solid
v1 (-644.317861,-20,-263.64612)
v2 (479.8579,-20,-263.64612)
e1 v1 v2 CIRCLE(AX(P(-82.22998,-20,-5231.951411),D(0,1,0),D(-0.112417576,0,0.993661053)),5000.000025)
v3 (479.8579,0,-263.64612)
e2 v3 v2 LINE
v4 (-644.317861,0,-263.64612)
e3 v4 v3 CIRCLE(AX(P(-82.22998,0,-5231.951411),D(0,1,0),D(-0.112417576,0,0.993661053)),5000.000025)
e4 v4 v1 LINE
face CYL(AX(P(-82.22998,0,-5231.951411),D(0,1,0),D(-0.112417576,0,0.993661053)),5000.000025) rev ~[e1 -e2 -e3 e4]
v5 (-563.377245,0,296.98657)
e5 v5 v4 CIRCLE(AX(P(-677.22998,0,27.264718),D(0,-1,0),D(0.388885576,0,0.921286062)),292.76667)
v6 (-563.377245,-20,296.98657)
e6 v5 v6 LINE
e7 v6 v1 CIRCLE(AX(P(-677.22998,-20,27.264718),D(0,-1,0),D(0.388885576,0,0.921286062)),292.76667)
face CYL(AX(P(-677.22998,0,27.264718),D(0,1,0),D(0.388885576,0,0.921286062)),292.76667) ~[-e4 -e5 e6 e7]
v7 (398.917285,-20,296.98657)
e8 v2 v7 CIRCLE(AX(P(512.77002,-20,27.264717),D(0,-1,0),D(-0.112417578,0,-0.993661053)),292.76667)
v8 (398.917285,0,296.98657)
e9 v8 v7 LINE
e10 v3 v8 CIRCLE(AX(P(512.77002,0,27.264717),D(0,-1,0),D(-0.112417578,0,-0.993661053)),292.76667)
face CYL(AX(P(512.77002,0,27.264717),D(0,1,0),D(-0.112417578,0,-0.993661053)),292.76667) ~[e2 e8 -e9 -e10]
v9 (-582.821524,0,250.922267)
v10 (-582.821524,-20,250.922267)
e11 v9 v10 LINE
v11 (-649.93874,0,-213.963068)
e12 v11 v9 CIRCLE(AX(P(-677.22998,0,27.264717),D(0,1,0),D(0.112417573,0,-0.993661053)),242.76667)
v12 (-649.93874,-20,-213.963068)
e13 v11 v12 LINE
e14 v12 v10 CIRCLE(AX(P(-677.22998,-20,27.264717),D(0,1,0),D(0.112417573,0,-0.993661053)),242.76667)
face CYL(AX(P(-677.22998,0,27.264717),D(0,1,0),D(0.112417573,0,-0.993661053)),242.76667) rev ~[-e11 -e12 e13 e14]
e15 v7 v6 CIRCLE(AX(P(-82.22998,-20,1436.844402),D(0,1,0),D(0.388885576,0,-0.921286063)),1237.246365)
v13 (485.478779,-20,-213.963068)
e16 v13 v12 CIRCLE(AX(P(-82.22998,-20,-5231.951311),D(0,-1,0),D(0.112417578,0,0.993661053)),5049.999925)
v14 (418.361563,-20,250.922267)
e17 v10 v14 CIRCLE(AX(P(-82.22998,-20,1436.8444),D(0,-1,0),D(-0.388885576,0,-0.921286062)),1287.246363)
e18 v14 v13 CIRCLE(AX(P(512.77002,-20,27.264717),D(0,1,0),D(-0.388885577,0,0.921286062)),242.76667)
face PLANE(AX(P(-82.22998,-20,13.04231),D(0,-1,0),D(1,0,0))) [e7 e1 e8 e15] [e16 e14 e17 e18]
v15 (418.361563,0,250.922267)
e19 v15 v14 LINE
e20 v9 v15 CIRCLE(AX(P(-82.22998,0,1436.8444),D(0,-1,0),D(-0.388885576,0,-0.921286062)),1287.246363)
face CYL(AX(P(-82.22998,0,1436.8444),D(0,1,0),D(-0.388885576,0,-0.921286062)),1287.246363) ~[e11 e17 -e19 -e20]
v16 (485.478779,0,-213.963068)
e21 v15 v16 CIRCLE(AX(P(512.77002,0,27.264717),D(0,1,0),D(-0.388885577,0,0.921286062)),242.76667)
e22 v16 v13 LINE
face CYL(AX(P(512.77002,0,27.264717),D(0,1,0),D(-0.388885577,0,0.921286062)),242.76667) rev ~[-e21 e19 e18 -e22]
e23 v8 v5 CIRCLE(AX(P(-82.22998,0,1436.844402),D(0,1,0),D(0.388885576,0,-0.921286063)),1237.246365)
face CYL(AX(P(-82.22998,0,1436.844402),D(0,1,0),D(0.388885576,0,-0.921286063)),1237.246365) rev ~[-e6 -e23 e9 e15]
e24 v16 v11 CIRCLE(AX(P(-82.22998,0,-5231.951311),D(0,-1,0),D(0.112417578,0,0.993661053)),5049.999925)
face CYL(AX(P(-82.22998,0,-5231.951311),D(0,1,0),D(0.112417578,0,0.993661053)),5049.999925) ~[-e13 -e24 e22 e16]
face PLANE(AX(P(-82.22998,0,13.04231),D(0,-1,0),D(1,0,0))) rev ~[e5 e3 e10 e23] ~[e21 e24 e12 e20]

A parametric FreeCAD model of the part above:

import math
import FreeCAD as App
import Part
import Sketcher

V = App.Vector

doc = App.newDocument("Part")
body = doc.addObject("PartDesign::Body", "Body")

sketch1 = body.newObject("Sketcher::SketchObject", "Sketch")
sketch1.AttachmentSupport = (doc.getObject("XZ_Plane"), [""])
sketch1.MapMode = "FlatFace"
sketch1.addGeometry([
    Part.ArcOfCircle(Part.Circle(V(-82, 1437, 0), V(0, 0, 1), 1237), math.radians(-113), math.radians(-67)),
    Part.ArcOfCircle(Part.Circle(V(-677, 27, 0), V(0, 0, 1), 293), math.radians(67), math.radians(276)),
    Part.ArcOfCircle(Part.Circle(V(-82, -5232, 0), V(0, 0, 1), 5000), math.radians(83.55), math.radians(96.45)),
    Part.ArcOfCircle(Part.Circle(V(513, 27, 0), V(0, 0, 1), 293), math.radians(-96), math.radians(113)),
    Part.ArcOfCircle(Part.Circle(V(-82, -5232, 0), V(0, 0, 1), 5050), math.radians(83.55), math.radians(96.45)),
    Part.ArcOfCircle(Part.Circle(V(-677, 27, 0), V(0, 0, 1), 243), math.radians(67), math.radians(276)),
    Part.ArcOfCircle(Part.Circle(V(-82, 1437, 0), V(0, 0, 1), 1287), math.radians(-113), math.radians(-67)),
    Part.ArcOfCircle(Part.Circle(V(513, 27, 0), V(0, 0, 1), 243), math.radians(-96), math.radians(113)),
], False)
sketch1.addConstraint([
    Sketcher.Constraint("Tangent", 0, 1, 1, 1),
    Sketcher.Constraint("Tangent", 1, 2, 2, 2),
    Sketcher.Constraint("Tangent", 2, 1, 3, 1),
    Sketcher.Constraint("Tangent", 3, 2, 0, 2),
    Sketcher.Constraint("Tangent", 4, 2, 5, 2),
    Sketcher.Constraint("Tangent", 5, 1, 6, 1),
    Sketcher.Constraint("Tangent", 6, 2, 7, 2),
    Sketcher.Constraint("Tangent", 7, 1, 4, 1),
    Sketcher.Constraint("Coincident", 5, 3, 1, 3),
    Sketcher.Constraint("Coincident", 6, 3, 0, 3),
    Sketcher.Constraint("Coincident", 7, 3, 3, 3),
    Sketcher.Constraint("Equal", 1, 3),
    Sketcher.Constraint("Horizontal", 1, 3, 3, 3),
    Sketcher.Constraint("DistanceX", 1, 3, 0, 3, 595.0),
    Sketcher.Constraint("Radius", 1, 292.76667),
    Sketcher.Constraint("Radius", 5, 242.76667),
    Sketcher.Constraint("Radius", 0, 1237.246365),
    Sketcher.Constraint("Radius", 2, 5000.000025),
    Sketcher.Constraint("Radius", 4, 5049.999925),
    Sketcher.Constraint("DistanceY", -1, 1, 6, 3, 1436.8444),
    Sketcher.Constraint("DistanceX", 0, 3, -1, 1, 82.22998),
])
pad1 = body.newObject("PartDesign::Pad", "Pad")
pad1.Profile = sketch1
pad1.Length = 20

doc.recompute()
